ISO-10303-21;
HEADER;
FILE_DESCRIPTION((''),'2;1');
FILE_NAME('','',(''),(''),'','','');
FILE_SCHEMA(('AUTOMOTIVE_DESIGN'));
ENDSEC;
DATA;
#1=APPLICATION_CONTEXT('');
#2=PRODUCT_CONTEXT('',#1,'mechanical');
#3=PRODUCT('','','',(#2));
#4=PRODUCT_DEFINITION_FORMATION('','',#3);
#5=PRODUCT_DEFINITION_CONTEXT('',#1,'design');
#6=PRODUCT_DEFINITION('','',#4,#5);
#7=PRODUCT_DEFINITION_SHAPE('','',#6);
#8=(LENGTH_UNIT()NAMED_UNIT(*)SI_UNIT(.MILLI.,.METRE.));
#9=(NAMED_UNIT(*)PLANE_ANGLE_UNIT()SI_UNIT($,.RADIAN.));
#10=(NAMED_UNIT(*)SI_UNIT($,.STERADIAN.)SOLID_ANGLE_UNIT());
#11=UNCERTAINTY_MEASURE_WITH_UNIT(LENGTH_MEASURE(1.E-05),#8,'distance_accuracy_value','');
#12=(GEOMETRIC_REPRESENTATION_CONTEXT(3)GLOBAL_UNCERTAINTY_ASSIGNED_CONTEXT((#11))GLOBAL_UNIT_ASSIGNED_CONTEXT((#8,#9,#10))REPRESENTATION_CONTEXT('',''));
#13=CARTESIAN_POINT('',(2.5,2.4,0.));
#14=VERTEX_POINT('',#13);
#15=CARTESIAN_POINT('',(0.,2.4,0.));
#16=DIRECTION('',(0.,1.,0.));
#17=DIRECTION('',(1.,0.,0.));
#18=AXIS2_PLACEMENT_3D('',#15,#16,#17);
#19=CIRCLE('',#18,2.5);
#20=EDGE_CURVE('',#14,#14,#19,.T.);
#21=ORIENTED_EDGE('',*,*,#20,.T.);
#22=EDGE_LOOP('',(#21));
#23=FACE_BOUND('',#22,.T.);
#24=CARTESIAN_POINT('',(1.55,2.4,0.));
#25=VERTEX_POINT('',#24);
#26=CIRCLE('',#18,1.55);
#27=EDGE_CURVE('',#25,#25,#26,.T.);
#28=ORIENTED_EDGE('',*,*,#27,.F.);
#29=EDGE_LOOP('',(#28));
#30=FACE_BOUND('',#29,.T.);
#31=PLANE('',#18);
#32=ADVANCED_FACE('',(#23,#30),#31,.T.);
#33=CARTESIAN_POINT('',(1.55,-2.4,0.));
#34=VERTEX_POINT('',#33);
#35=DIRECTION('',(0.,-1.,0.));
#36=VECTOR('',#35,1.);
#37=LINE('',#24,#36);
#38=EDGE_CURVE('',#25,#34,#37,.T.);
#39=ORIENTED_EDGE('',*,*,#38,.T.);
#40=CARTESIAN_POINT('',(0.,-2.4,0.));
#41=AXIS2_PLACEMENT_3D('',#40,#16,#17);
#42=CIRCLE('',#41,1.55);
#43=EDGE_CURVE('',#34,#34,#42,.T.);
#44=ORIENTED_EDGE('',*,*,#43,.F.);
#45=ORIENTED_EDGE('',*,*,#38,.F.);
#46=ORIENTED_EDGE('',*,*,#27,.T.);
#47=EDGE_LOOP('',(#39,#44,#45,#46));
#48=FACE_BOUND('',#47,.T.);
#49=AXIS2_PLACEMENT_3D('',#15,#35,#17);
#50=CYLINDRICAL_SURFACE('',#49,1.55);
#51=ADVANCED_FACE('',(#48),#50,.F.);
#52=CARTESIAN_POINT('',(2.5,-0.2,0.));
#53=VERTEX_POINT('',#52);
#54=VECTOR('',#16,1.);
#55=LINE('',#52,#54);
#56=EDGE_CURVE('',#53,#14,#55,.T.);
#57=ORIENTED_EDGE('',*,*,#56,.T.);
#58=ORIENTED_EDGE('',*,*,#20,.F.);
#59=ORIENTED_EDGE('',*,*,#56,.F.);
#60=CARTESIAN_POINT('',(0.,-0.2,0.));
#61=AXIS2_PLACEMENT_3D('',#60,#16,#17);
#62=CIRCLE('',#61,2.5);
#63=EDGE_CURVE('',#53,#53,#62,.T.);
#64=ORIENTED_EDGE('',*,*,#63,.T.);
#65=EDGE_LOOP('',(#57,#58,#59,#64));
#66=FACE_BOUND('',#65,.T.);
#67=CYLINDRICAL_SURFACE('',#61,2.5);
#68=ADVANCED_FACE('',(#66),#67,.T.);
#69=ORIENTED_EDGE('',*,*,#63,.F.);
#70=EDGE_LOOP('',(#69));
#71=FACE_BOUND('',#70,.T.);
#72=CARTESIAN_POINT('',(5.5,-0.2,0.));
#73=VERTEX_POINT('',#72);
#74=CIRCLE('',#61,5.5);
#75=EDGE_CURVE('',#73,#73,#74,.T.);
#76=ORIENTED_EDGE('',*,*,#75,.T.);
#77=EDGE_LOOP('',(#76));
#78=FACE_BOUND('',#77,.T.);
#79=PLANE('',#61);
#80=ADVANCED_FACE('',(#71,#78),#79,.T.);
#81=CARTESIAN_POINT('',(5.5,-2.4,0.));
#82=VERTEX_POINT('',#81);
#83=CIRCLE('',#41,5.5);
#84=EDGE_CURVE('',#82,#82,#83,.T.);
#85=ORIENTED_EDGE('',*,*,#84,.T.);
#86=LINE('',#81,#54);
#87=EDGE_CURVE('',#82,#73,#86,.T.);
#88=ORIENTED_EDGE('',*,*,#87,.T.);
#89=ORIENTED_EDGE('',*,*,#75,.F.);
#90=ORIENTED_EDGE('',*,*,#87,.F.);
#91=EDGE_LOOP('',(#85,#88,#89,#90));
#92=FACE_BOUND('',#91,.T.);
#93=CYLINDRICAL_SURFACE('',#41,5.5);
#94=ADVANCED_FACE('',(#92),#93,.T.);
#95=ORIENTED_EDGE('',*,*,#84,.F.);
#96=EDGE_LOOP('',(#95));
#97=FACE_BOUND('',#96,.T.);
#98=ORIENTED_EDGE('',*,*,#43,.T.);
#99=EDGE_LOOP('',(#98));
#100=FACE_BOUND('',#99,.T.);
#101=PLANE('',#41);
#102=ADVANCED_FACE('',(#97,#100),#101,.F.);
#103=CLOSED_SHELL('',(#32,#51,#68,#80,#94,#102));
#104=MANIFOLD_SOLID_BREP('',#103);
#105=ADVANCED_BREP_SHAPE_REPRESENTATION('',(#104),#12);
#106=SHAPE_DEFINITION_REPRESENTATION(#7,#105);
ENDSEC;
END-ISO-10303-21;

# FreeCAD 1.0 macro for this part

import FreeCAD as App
import Part
import Sketcher
Q = App.Units.Quantity

doc = App.newDocument("Part")
body = doc.addObject("PartDesign::Body", "Body")

# Sketch on XY plane
sketch1 = body.newObject("Sketcher::SketchObject", "Sketch")
sketch1.AttachmentSupport = (doc.getObject("XY_Plane"), [""])
sketch1.MapMode = "FlatFace"
sketch1.addGeometry(Part.LineSegment(App.Vector(2.5, 2.4, 0), App.Vector(1.6, 2.4, 0)), False)
sketch1.addGeometry(Part.LineSegment(App.Vector(1.6, 2.4, 0), App.Vector(1.6, -2.4, 0)), False)
sketch1.addGeometry(Part.LineSegment(App.Vector(1.6, -2.4, 0), App.Vector(5.5, -2.4, 0)), False)
sketch1.addGeometry(Part.LineSegment(App.Vector(5.5, -2.4, 0), App.Vector(5.5, -0.2, 0)), False)
sketch1.addGeometry(Part.LineSegment(App.Vector(5.5, -0.2, 0), App.Vector(2.5, -0.2, 0)), False)
sketch1.addGeometry(Part.LineSegment(App.Vector(2.5, -0.2, 0), App.Vector(2.5, 2.4, 0)), False)
sketch1.addConstraint(Sketcher.Constraint("Coincident", 0, 2, 1, 1))
sketch1.addConstraint(Sketcher.Constraint("Coincident", 1, 2, 2, 1))
sketch1.addConstraint(Sketcher.Constraint("Coincident", 2, 2, 3, 1))
sketch1.addConstraint(Sketcher.Constraint("Coincident", 3, 2, 4, 1))
sketch1.addConstraint(Sketcher.Constraint("Coincident", 4, 2, 5, 1))
sketch1.addConstraint(Sketcher.Constraint("Coincident", 5, 2, 0, 1))
sketch1.addConstraint(Sketcher.Constraint("Horizontal", 0))
sketch1.addConstraint(Sketcher.Constraint("Vertical", 1))
sketch1.addConstraint(Sketcher.Constraint("Horizontal", 2))
sketch1.addConstraint(Sketcher.Constraint("Vertical", 3))
sketch1.addConstraint(Sketcher.Constraint("Horizontal", 4))
sketch1.addConstraint(Sketcher.Constraint("Vertical", 5))
sketch1.addConstraint(Sketcher.Constraint("DistanceY", 3, 1, 3, 2, Q("2.2 mm")))
sketch1.addConstraint(Sketcher.Constraint("DistanceY", 5, 1, 5, 2, Q("2.6 mm")))
sketch1.addConstraint(Sketcher.Constraint("DistanceX", -1, 1, 2, 2, Q("5.5 mm")))
sketch1.addConstraint(Sketcher.Constraint("DistanceX", -1, 1, 4, 2, Q("2.5 mm")))
sketch1.addConstraint(Sketcher.Constraint("DistanceX", -1, 1, 0, 2, Q("1.55 mm")))
sketch1.addConstraint(Sketcher.Constraint("DistanceY", -1, 1, 0, 2, Q("2.4 mm")))
revolution = body.newObject("PartDesign::Revolution", "Revolution")
revolution.Profile = sketch1
revolution.ReferenceAxis = (sketch1, ["V_Axis"])
revolution.Angle = 360

doc.recompute()
